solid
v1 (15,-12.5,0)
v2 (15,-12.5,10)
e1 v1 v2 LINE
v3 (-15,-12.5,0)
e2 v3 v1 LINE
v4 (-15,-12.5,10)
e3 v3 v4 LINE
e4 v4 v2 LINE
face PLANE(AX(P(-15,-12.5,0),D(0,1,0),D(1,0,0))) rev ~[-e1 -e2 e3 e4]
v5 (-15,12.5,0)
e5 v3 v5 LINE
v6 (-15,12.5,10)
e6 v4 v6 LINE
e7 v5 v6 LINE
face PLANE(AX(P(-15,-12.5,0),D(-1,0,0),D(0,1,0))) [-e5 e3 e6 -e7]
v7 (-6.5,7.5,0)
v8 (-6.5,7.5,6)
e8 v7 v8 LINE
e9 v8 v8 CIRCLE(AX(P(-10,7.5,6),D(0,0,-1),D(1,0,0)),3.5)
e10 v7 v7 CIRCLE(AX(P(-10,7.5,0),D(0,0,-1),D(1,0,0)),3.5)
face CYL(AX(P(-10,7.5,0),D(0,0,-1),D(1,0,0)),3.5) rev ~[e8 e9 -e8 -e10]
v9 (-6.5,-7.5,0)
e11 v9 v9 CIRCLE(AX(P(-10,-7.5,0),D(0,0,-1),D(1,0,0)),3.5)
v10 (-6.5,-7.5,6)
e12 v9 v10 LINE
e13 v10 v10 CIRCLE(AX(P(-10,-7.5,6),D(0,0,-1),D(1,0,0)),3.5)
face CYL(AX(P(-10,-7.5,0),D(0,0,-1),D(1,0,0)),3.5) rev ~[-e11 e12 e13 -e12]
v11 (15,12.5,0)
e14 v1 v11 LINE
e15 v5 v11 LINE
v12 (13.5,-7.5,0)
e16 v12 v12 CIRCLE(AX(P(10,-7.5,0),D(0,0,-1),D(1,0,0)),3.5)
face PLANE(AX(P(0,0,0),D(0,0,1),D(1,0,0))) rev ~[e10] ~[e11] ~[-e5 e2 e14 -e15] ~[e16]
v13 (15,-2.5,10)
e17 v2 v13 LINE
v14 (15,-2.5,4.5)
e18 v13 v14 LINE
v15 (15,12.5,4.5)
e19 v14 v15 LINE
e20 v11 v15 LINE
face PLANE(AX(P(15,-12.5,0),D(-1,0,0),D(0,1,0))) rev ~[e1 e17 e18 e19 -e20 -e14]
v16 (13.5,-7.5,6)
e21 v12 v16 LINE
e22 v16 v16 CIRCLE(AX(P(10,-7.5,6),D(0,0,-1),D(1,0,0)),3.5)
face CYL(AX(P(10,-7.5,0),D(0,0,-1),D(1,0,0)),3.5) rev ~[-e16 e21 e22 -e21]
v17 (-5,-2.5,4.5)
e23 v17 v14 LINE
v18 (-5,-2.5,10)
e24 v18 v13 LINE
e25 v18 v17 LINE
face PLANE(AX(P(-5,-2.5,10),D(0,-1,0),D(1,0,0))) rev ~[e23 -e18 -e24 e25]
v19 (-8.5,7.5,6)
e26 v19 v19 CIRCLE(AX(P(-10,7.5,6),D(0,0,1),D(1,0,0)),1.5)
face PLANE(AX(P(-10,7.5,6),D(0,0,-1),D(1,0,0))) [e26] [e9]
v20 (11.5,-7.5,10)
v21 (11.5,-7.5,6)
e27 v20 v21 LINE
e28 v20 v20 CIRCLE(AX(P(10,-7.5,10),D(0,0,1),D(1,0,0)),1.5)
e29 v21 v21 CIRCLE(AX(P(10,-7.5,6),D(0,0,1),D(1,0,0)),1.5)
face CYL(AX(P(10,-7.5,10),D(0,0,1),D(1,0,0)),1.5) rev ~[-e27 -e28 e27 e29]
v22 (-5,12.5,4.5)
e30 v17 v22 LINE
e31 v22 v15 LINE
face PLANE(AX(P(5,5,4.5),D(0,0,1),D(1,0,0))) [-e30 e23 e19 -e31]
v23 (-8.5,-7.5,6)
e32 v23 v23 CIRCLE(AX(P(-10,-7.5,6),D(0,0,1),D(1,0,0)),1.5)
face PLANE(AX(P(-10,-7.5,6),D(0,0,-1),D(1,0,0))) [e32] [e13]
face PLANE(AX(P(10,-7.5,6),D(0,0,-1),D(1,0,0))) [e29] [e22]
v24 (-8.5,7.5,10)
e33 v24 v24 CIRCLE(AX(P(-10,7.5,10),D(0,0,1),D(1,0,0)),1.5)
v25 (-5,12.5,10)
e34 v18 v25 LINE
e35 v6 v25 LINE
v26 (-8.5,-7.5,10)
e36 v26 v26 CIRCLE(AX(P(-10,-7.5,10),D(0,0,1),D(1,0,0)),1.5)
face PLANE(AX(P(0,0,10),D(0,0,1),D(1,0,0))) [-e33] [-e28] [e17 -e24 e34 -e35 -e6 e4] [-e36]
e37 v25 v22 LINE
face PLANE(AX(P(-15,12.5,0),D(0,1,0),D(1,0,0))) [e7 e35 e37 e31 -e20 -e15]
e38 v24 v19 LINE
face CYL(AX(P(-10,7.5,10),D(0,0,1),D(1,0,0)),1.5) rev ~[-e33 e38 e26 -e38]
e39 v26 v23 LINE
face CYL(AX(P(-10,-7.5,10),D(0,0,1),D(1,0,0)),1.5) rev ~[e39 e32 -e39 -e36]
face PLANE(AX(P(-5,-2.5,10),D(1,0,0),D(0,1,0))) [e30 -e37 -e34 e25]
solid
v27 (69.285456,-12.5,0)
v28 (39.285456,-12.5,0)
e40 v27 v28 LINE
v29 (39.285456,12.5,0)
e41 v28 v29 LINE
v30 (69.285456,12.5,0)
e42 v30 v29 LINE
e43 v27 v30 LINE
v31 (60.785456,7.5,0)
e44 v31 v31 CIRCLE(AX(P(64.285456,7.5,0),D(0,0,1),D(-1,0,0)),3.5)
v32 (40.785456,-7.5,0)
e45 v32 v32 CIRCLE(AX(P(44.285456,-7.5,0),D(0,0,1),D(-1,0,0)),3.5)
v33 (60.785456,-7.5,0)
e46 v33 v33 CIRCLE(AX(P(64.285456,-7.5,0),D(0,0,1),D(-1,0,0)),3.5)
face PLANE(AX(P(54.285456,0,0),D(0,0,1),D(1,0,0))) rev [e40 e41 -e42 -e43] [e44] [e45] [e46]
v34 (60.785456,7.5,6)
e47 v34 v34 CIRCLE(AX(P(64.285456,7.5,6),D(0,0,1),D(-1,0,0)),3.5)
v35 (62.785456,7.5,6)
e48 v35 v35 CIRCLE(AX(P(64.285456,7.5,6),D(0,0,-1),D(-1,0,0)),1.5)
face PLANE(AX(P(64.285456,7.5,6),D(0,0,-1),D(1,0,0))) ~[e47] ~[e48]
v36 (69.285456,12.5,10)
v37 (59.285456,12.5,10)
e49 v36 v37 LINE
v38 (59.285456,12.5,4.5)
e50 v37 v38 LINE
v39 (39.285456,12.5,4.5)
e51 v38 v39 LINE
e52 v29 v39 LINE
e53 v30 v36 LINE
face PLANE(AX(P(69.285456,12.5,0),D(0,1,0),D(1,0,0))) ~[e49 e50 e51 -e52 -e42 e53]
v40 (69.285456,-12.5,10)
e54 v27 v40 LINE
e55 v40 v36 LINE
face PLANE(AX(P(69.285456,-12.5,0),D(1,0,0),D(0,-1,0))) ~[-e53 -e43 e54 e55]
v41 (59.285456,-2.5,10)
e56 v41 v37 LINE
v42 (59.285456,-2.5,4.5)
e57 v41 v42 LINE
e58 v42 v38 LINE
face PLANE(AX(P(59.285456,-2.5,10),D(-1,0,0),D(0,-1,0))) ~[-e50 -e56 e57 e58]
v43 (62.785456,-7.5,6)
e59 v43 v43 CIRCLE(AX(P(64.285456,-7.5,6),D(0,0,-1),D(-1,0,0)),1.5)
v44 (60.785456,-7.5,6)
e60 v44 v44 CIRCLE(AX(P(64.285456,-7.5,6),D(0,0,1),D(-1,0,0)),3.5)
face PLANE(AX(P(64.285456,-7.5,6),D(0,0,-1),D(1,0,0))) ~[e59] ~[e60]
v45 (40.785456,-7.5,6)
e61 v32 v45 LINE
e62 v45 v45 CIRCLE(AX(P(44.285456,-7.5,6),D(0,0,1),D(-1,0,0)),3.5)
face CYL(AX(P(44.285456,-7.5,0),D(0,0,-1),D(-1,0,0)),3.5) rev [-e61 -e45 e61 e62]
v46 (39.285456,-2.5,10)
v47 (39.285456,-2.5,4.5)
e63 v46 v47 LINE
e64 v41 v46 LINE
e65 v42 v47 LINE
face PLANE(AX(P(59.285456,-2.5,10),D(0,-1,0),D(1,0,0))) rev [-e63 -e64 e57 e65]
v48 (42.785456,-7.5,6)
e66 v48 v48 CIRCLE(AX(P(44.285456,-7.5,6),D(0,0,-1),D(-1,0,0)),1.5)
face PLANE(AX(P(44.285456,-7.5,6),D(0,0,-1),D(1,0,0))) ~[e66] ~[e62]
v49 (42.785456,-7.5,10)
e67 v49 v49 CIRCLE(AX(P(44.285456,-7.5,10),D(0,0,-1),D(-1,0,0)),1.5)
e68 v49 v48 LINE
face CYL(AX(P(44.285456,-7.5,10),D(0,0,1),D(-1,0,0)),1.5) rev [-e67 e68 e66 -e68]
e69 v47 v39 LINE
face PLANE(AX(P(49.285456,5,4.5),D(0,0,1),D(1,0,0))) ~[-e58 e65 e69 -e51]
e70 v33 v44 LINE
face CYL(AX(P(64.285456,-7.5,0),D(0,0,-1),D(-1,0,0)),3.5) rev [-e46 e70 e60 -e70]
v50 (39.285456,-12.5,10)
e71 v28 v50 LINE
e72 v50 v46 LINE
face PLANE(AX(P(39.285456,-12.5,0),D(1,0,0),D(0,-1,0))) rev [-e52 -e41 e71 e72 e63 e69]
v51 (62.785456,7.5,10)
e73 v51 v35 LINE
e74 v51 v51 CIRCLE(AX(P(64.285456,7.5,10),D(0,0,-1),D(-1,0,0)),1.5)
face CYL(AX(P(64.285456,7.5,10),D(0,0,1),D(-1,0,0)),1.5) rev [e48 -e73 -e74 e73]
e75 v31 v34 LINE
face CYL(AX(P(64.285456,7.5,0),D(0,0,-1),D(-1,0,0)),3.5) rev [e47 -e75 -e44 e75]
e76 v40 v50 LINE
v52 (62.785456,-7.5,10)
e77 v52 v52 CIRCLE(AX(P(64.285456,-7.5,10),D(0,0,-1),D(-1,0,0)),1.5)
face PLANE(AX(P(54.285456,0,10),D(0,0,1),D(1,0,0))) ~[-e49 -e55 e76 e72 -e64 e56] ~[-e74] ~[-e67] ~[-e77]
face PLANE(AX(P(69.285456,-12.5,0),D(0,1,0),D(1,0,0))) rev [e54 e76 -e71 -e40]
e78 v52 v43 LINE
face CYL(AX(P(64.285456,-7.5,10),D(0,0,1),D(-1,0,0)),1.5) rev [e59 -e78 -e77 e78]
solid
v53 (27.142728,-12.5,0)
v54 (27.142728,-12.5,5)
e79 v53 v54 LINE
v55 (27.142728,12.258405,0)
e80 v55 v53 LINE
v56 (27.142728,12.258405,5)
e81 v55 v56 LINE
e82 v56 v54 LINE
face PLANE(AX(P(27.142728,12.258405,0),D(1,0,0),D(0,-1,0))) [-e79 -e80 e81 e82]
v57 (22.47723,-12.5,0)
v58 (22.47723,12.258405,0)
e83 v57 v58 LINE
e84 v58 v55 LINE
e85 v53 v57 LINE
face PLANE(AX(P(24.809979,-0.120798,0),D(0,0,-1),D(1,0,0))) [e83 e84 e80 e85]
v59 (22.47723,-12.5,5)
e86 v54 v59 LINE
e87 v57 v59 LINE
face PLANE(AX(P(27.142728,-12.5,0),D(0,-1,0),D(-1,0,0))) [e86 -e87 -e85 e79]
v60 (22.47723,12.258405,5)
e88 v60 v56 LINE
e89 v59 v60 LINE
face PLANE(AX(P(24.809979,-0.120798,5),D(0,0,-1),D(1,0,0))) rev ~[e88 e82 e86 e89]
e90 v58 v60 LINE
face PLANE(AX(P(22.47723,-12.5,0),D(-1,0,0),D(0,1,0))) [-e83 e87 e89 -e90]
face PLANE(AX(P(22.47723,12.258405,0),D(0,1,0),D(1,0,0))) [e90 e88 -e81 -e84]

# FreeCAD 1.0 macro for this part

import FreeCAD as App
import Part
import Sketcher
from FreeCAD import Vector
Q = App.Units.Quantity

doc = App.newDocument("Part")
body = doc.addObject("PartDesign::Body", "Body")

sketch1 = doc.addObject("Sketcher::SketchObject", "Sketch")
body.addObject(sketch1)
sketch1.AttachmentSupport = (doc.XY_Plane, [""])
sketch1.MapMode = "FlatFace"
sketch1.addGeometry([
    Part.LineSegment(Vector(-15, 12, 0), Vector(-15, -12, 0)),
    Part.LineSegment(Vector(-15, -12, 0), Vector(15, -12, 0)),
    Part.LineSegment(Vector(15, -12, 0), Vector(15, 12, 0)),
    Part.LineSegment(Vector(15, 12, 0), Vector(-15, 12, 0)),
], False)
sketch1.addConstraint([
    Sketcher.Constraint("Coincident", 0, 2, 1, 1),
    Sketcher.Constraint("Coincident", 1, 2, 2, 1),
    Sketcher.Constraint("Coincident", 2, 2, 3, 1),
    Sketcher.Constraint("Coincident", 3, 2, 0, 1),
    Sketcher.Constraint("Vertical", 0),
    Sketcher.Constraint("Horizontal", 1),
    Sketcher.Constraint("Vertical", 2),
    Sketcher.Constraint("Horizontal", 3),
    Sketcher.Constraint("Symmetric", 0, 2, 2, 2, -1, 1),
    Sketcher.Constraint("DistanceX", 1, 1, 1, 2, Q("30 mm")),
    Sketcher.Constraint("DistanceY", 0, 2, 0, 1, Q("25 mm")),
])
pad1 = doc.addObject("PartDesign::Pad", "Pad")
body.addObject(pad1)
pad1.Profile = sketch1
pad1.Length = 10

sketch2 = doc.addObject("Sketcher::SketchObject", "Sketch001")
body.addObject(sketch2)
sketch2.AttachmentSupport = (doc.XY_Plane, [""])
sketch2.MapMode = "FlatFace"
sketch2.AttachmentOffset = App.Placement(Vector(0, 0, 10), App.Rotation())
sketch2.addGeometry([
    Part.LineSegment(Vector(-5, 12, 0), Vector(-5, -2, 0)),
    Part.LineSegment(Vector(-5, -2, 0), Vector(15, -2, 0)),
    Part.LineSegment(Vector(15, -2, 0), Vector(15, 12, 0)),
    Part.LineSegment(Vector(15, 12, 0), Vector(-5, 12, 0)),
], False)
sketch2.addConstraint([
    Sketcher.Constraint("Coincident", 0, 2, 1, 1),
    Sketcher.Constraint("Coincident", 1, 2, 2, 1),
    Sketcher.Constraint("Coincident", 2, 2, 3, 1),
    Sketcher.Constraint("Coincident", 3, 2, 0, 1),
    Sketcher.Constraint("Vertical", 0),
    Sketcher.Constraint("Horizontal", 1),
    Sketcher.Constraint("Vertical", 2),
    Sketcher.Constraint("Horizontal", 3),
    Sketcher.Constraint("DistanceX", 1, 1, 1, 2, Q("20 mm")),
    Sketcher.Constraint("DistanceY", 0, 2, 0, 1, Q("15 mm")),
    Sketcher.Constraint("DistanceX", 0, 2, -1, 1, Q("5 mm")),
    Sketcher.Constraint("DistanceY", 0, 2, -1, 1, Q("2.5 mm")),
])
pocket1 = doc.addObject("PartDesign::Pocket", "Pocket")
body.addObject(pocket1)
pocket1.Profile = sketch2
pocket1.Length = 5.5

sketch3 = doc.addObject("Sketcher::SketchObject", "Sketch002")
body.addObject(sketch3)
sketch3.AttachmentSupport = (doc.XY_Plane, [""])
sketch3.MapMode = "FlatFace"
sketch3.AttachmentOffset = App.Placement(Vector(0, 0, 10), App.Rotation())
sketch3.addGeometry([
    Part.Circle(Vector(-10, 7.5, 0), Vector(0, 0, 1), 1.5),
    Part.Circle(Vector(10, -7.5, 0), Vector(0, 0, 1), 1.5),
    Part.Circle(Vector(-10, -7.5, 0), Vector(0, 0, 1), 1.5),
], False)
sketch3.addConstraint([
    Sketcher.Constraint("Equal", 0, 1),
    Sketcher.Constraint("Equal", 1, 2),
    Sketcher.Constraint("Symmetric", 0, 3, 1, 3, -1, 1),
    Sketcher.Constraint("Symmetric", 1, 3, 2, 3, -2),
    Sketcher.Constraint("Diameter", 0, Q("3 mm")),
    Sketcher.Constraint("DistanceX", 0, 3, -1, 1, Q("10 mm")),
    Sketcher.Constraint("DistanceY", 1, 3, 0, 3, Q("15 mm")),
])
pocket2 = doc.addObject("PartDesign::Pocket", "Pocket001")
body.addObject(pocket2)
pocket2.Profile = sketch3
pocket2.Length = 25

sketch4 = doc.addObject("Sketcher::SketchObject", "Sketch003")
body.addObject(sketch4)
sketch4.AttachmentSupport = (doc.XY_Plane, [""])
sketch4.MapMode = "FlatFace"
sketch4.addGeometry([
    Part.Circle(Vector(-10, 7.5, 0), Vector(0, 0, 1), 3.5),
    Part.Circle(Vector(-10, -7.5, 0), Vector(0, 0, 1), 3.5),
    Part.Circle(Vector(10, -7.5, 0), Vector(0, 0, 1), 3.5),
], False)
sketch4.addConstraint([
    Sketcher.Constraint("Equal", 0, 1),
    Sketcher.Constraint("Equal", 1, 2),
    Sketcher.Constraint("Symmetric", 0, 3, 2, 3, -1, 1),
    Sketcher.Constraint("Symmetric", 1, 3, 2, 3, -2),
    Sketcher.Constraint("Diameter", 0, Q("7 mm")),
    Sketcher.Constraint("DistanceX", 0, 3, -1, 1, Q("10 mm")),
    Sketcher.Constraint("DistanceY", 1, 3, 0, 3, Q("15 mm")),
])
pocket3 = doc.addObject("PartDesign::Pocket", "Pocket002")
body.addObject(pocket3)
pocket3.Profile = sketch4
pocket3.Length = 6
pocket3.Reversed = True
body2 = doc.addObject("PartDesign::Body", "Body001")

sketch5 = doc.addObject("Sketcher::SketchObject", "Sketch004")
body2.addObject(sketch5)
sketch5.AttachmentSupport = (doc.getObject("XY_Plane001"), [""])
sketch5.MapMode = "FlatFace"
sketch5.addGeometry([
    Part.LineSegment(Vector(22.5, -12.5, 0), Vector(22.5, 12.3, 0)),
    Part.LineSegment(Vector(22.5, 12.3, 0), Vector(27.1, 12.3, 0)),
    Part.LineSegment(Vector(27.1, 12.3, 0), Vector(27.1, -12.5, 0)),
    Part.LineSegment(Vector(27.1, -12.5, 0), Vector(22.5, -12.5, 0)),
], False)
sketch5.addConstraint([
    Sketcher.Constraint("Coincident", 0, 2, 1, 1),
    Sketcher.Constraint("Coincident", 1, 2, 2, 1),
    Sketcher.Constraint("Coincident", 2, 2, 3, 1),
    Sketcher.Constraint("Coincident", 3, 2, 0, 1),
    Sketcher.Constraint("Vertical", 0),
    Sketcher.Constraint("Horizontal", 1),
    Sketcher.Constraint("Vertical", 2),
    Sketcher.Constraint("Horizontal", 3),
    Sketcher.Constraint("DistanceY", 2, 2, -1, 1, Q("12.5 mm")),
    Sketcher.Constraint("DistanceX", 1, 1, 1, 2, Q("4.665498 mm")),
    Sketcher.Constraint("DistanceY", 0, 1, 0, 2, Q("24.758405 mm")),
    Sketcher.Constraint("DistanceX", -1, 1, 0, 2, Q("22.47723 mm")),
])
pad2 = doc.addObject("PartDesign::Pad", "Pad001")
body2.addObject(pad2)
pad2.Profile = sketch5
pad2.Length = 5
body3 = doc.addObject("PartDesign::Body", "Body002")
doc.recompute()

mirroring = doc.addObject("Part::Mirroring", "Mirroring")
mirroring.Source = body
mirroring.Base = Vector(27.142728, -0.120798, 2.5)
mirroring.Normal = Vector(1, 0, 0)
body3.BaseFeature = mirroring
doc.recompute()
mirroring.Visibility = False

doc.recompute()
